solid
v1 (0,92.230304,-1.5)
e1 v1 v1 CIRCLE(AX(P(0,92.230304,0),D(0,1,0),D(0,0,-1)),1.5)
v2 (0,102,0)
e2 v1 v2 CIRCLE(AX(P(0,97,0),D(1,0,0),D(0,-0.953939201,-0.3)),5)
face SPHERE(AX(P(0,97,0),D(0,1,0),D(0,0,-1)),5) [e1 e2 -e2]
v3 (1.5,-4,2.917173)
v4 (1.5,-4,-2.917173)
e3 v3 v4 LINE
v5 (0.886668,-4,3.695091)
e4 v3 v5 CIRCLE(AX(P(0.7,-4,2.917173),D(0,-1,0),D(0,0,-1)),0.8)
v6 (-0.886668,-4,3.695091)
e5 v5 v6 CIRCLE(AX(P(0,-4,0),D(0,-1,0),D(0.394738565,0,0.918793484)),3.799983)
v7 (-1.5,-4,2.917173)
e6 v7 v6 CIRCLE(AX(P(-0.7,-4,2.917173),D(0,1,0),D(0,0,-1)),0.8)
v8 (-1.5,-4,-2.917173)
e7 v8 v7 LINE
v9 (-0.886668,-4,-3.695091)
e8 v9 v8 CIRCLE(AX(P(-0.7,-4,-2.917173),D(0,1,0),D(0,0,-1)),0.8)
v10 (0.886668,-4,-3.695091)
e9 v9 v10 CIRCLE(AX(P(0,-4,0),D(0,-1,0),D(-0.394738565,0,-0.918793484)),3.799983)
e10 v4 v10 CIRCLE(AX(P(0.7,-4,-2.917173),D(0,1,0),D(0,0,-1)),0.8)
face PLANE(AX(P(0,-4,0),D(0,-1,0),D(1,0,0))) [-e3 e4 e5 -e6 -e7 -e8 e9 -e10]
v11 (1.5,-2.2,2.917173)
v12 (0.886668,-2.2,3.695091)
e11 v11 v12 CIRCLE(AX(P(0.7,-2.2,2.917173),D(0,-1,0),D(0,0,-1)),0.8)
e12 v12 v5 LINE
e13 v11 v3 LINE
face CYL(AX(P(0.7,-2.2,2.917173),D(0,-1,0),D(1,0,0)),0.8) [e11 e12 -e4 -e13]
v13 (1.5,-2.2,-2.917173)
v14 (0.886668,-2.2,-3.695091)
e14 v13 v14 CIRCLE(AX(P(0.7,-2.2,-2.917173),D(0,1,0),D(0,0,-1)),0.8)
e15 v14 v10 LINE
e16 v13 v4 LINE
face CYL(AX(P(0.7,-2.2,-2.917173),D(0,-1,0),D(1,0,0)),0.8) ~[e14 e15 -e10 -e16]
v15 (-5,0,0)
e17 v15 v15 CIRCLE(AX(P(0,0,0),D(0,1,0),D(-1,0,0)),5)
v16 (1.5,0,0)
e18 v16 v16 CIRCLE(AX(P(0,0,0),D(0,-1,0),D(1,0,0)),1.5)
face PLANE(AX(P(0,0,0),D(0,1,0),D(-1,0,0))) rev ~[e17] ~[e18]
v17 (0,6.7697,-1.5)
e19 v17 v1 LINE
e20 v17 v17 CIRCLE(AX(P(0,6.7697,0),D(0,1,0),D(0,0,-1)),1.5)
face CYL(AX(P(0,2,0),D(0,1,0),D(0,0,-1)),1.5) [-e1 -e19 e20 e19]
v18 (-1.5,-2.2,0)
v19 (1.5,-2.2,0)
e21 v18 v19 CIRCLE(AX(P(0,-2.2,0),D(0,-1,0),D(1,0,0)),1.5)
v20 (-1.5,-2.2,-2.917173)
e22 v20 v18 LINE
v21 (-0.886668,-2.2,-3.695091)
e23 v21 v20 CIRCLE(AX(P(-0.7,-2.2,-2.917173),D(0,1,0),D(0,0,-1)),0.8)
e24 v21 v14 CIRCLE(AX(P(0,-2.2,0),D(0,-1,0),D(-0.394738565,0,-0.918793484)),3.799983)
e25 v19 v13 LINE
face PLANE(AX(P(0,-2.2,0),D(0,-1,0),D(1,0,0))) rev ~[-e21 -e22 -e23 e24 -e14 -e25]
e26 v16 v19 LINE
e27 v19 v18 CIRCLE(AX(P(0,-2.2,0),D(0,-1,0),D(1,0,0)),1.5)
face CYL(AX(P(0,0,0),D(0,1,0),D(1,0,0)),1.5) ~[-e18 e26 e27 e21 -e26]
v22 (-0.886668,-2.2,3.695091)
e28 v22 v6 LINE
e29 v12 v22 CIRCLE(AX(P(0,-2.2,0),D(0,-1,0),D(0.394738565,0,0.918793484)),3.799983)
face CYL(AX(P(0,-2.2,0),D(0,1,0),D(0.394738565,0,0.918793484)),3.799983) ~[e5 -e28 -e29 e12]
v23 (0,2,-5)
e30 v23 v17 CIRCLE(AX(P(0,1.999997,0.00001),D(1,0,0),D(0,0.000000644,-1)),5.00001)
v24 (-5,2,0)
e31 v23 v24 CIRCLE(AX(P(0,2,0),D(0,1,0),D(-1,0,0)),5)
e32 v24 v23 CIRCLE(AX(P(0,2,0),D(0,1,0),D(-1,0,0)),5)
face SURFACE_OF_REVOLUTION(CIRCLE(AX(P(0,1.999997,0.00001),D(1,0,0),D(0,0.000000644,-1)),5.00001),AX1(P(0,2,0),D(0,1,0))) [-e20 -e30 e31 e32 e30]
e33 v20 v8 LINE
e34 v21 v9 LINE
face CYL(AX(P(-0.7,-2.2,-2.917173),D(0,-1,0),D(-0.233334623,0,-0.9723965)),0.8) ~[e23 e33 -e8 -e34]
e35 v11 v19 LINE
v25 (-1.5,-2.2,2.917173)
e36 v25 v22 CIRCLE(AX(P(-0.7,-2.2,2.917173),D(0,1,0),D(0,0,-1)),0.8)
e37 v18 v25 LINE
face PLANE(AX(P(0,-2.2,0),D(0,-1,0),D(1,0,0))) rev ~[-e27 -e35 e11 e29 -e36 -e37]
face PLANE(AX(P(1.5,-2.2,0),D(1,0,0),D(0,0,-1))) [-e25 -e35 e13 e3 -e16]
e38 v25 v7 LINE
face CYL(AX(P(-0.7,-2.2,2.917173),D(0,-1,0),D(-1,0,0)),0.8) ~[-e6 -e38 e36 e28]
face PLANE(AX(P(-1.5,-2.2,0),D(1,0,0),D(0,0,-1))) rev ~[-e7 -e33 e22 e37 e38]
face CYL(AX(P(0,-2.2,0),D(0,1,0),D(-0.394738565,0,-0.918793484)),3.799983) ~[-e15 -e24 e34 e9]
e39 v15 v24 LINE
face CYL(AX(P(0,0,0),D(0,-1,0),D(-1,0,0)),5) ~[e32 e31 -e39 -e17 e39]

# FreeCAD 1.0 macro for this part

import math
import FreeCAD as App
import Part
import Sketcher
Q = App.Units.Quantity


def edges_at(feature, points):
    """Names of the edges that pass closest to the given points."""
    edges = feature.Shape.Edges
    near = lambda p: min(range(len(edges)), key=lambda i: edges[i].distToShape(Part.Vertex(*p))[0])
    return sorted({f"Edge{near(p) + 1}" for p in points})

doc = App.newDocument("Part")
body = doc.addObject("PartDesign::Body", "Body")

sketch1 = body.newObject("Sketcher::SketchObject", "Sketch")
sketch1.AttachmentSupport = (doc.getObject("XZ_Plane"), [""])
sketch1.MapMode = "FlatFace"
sketch1.addGeometry(Part.Circle(App.Vector(0, 0, 0), App.Vector(0, 0, 1), 5), False)
sketch1.addConstraint([
    Sketcher.Constraint("Coincident", 0, 3, -1, 1),
    Sketcher.Constraint("Diameter", 0, Q("10 mm")),
])
pad1 = body.newObject("PartDesign::Pad", "Pad")
pad1.Profile = sketch1
pad1.Length = 2
pad1.Reversed = True

sketch2 = body.newObject("Sketcher::SketchObject", "Sketch001")
sketch2.AttachmentSupport = (doc.getObject("XZ_Plane"), [""])
sketch2.MapMode = "FlatFace"
sketch2.addGeometry(Part.Circle(App.Vector(0, 0, 0), App.Vector(0, 0, 1), 1.5), False)
sketch2.addConstraint([
    Sketcher.Constraint("Coincident", 0, 3, -1, 1),
    Sketcher.Constraint("Diameter", 0, Q("3 mm")),
])
pad2 = body.newObject("PartDesign::Pad", "Pad001")
pad2.Profile = sketch2
pad2.Length = 2.2

sketch3 = body.newObject("Sketcher::SketchObject", "Sketch002")
sketch3.AttachmentSupport = (doc.getObject("XZ_Plane"), [""])
sketch3.MapMode = "FlatFace"
sketch3.AttachmentOffset = App.Placement(App.Vector(0, 0, 2.2), App.Rotation())
sketch3.addGeometry([
    Part.LineSegment(App.Vector(1.5, -3.5, 0), App.Vector(1.5, 3.5, 0)),
    Part.ArcOfCircle(Part.Circle(App.Vector(0, 0, 0), App.Vector(0, 0, 1), 3.8), math.radians(67), math.radians(113)),
    Part.LineSegment(App.Vector(-1.5, 3.5, 0), App.Vector(-1.5, -3.5, 0)),
    Part.ArcOfCircle(Part.Circle(App.Vector(0, 0, 0), App.Vector(0, 0, 1), 3.8), math.radians(-113), math.radians(-67)),
], False)
sketch3.addConstraint([
    Sketcher.Constraint("Coincident", 0, 2, 1, 1),
    Sketcher.Constraint("Coincident", 1, 2, 2, 1),
    Sketcher.Constraint("Coincident", 2, 2, 3, 1),
    Sketcher.Constraint("Coincident", 3, 2, 0, 1),
    Sketcher.Constraint("Vertical", 0),
    Sketcher.Constraint("Vertical", 2),
    Sketcher.Constraint("Coincident", 1, 3, -1, 1),
    Sketcher.Constraint("Coincident", 3, 3, -1, 1),
    Sketcher.Constraint("Equal", 1, 3),
    Sketcher.Constraint("Horizontal", 0, 2, 1, 2),
    Sketcher.Constraint("Radius", 1, Q("3.8 mm")),
    Sketcher.Constraint("DistanceX", 1, 2, 0, 2, Q("3 mm")),
])
pad3 = body.newObject("PartDesign::Pad", "Pad002")
pad3.Profile = sketch3
pad3.Length = 1.8
doc.recompute()

fillet = body.newObject("PartDesign::Fillet", "Fillet")
fillet.Base = (pad3, edges_at(pad3, [
    (-1.5, -3.1, 3.491),
    (1.5, -3.1, 3.491),
    (-1.5, -3.1, -3.491),
    (1.5, -3.1, -3.491),
]))
fillet.Radius = 0.8

sketch4 = body.newObject("Sketcher::SketchObject", "Sketch003")
sketch4.AttachmentSupport = (doc.getObject("YZ_Plane"), [""])
sketch4.MapMode = "FlatFace"
sketch4.addGeometry([
    Part.ArcOfCircle(Part.Circle(App.Vector(2, 0, 0), App.Vector(0, 0, 1), 5), math.radians(-90), math.radians(-17)),
    Part.LineSegment(App.Vector(7, -2, 0), App.Vector(92, -2, 0)),
    Part.ArcOfCircle(Part.Circle(App.Vector(97, 0, 0), App.Vector(0, 0, 1), 5), math.radians(-163), math.radians(0)),
    Part.LineSegment(App.Vector(102, 0, 0), App.Vector(2, 0, 0)),
    Part.LineSegment(App.Vector(2, 0, 0), App.Vector(2, -5, 0)),
], False)
sketch4.addConstraint([
    Sketcher.Constraint("Coincident", 0, 2, 1, 1),
    Sketcher.Constraint("Coincident", 1, 2, 2, 1),
    Sketcher.Constraint("Coincident", 2, 2, 3, 1),
    Sketcher.Constraint("Coincident", 3, 2, 4, 1),
    Sketcher.Constraint("Coincident", 4, 2, 0, 1),
    Sketcher.Constraint("Horizontal", 1),
    Sketcher.Constraint("Horizontal", 3),
    Sketcher.Constraint("Vertical", 4),
    Sketcher.Constraint("Coincident", 3, 2, 0, 3),
    Sketcher.Constraint("Equal", 0, 2),
    Sketcher.Constraint("PointOnObject", 0, 3, -1),
    Sketcher.Constraint("PointOnObject", 2, 3, -1),
    Sketcher.Constraint("Radius", 0, Q("5 mm")),
    Sketcher.Constraint("DistanceX", 3, 2, 3, 1, Q("100 mm")),
    Sketcher.Constraint("DistanceY", 0, 2, -1, 1, Q("1.5 mm")),
    Sketcher.Constraint("DistanceX", -1, 1, 0, 3, Q("2 mm")),
])
revolution = body.newObject("PartDesign::Revolution", "Revolution")
revolution.Profile = sketch4
revolution.ReferenceAxis = (sketch4, ["H_Axis"])
revolution.Angle = 360

doc.recompute()
